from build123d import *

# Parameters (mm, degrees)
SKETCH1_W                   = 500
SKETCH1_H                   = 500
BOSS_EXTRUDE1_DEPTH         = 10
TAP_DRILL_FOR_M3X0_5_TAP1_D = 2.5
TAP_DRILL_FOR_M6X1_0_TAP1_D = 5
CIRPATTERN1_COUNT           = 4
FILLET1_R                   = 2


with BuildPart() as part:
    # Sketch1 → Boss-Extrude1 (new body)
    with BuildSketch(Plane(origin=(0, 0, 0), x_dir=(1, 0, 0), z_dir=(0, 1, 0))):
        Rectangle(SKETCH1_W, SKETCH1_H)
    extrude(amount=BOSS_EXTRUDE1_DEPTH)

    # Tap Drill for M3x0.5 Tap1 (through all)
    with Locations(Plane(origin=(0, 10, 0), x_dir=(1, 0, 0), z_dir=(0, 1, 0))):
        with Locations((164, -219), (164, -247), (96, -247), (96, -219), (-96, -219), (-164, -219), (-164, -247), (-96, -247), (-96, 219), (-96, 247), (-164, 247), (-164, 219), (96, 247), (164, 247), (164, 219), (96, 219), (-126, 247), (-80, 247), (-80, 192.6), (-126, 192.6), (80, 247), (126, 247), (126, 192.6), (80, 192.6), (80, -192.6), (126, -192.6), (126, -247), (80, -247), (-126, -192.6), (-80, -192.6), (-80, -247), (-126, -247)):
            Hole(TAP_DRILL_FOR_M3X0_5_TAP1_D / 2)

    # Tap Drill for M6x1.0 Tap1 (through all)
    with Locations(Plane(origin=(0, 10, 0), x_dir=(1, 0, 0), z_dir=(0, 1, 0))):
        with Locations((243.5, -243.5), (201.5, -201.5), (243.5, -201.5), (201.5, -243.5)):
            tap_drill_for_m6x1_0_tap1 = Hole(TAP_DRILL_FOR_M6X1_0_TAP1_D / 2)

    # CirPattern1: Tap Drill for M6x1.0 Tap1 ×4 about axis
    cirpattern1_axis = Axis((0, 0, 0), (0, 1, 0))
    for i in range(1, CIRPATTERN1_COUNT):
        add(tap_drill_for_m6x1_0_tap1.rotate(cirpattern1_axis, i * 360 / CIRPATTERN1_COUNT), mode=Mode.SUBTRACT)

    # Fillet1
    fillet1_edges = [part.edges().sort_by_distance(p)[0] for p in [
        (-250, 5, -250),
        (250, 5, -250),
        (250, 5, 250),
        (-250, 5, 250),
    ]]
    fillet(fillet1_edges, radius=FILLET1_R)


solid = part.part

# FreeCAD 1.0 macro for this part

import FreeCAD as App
import Part
import Sketcher
Q = App.Units.Quantity


def edges_at(feature, points):
    """Names of the edges that pass closest to the given points."""
    edges = feature.Shape.Edges
    near = lambda p: min(range(len(edges)), key=lambda i: edges[i].distToShape(Part.Vertex(*p))[0])
    return sorted({f"Edge{near(p) + 1}" for p in points})

doc = App.newDocument("Part")
body = doc.addObject("PartDesign::Body", "Body")

# Sketch on XZ plane
sketch1 = body.newObject("Sketcher::SketchObject", "Sketch")
sketch1.AttachmentSupport = (doc.getObject("XZ_Plane"), [""])
sketch1.MapMode = "FlatFace"
sketch1.addGeometry(Part.LineSegment(App.Vector(-250, -250, 0), App.Vector(-250, 250, 0)), False)
sketch1.addGeometry(Part.LineSegment(App.Vector(-250, 250, 0), App.Vector(250, 250, 0)), False)
sketch1.addGeometry(Part.LineSegment(App.Vector(250, 250, 0), App.Vector(250, -250, 0)), False)
sketch1.addGeometry(Part.LineSegment(App.Vector(250, -250, 0), App.Vector(-250, -250, 0)), False)
sketch1.addConstraint(Sketcher.Constraint("Coincident", 0, 2, 1, 1))
sketch1.addConstraint(Sketcher.Constraint("Coincident", 1, 2, 2, 1))
sketch1.addConstraint(Sketcher.Constraint("Coincident", 2, 2, 3, 1))
sketch1.addConstraint(Sketcher.Constraint("Coincident", 3, 2, 0, 1))
sketch1.addConstraint(Sketcher.Constraint("Vertical", 0))
sketch1.addConstraint(Sketcher.Constraint("Horizontal", 1))
sketch1.addConstraint(Sketcher.Constraint("Vertical", 2))
sketch1.addConstraint(Sketcher.Constraint("Horizontal", 3))
sketch1.addConstraint(Sketcher.Constraint("Symmetric", 0, 2, 2, 2, -1, 1))
sketch1.addConstraint(Sketcher.Constraint("Equal", 3, 0))
sketch1.addConstraint(Sketcher.Constraint("DistanceX", 1, 1, 1, 2, Q("500 mm")))
pad1 = body.newObject("PartDesign::Pad", "Pad")
pad1.Profile = sketch1
pad1.Length = 10
pad1.Reversed = True

# Sketch on XZ plane
sketch2 = body.newObject("Sketcher::SketchObject", "Sketch001")
sketch2.AttachmentSupport = (doc.getObject("XZ_Plane"), [""])
sketch2.MapMode = "FlatFace"
sketch2.AttachmentOffset = App.Placement(App.Vector(0, 0, -10), App.Rotation())
sketch2.addGeometry(Part.Circle(App.Vector(164, 219, 0), App.Vector(0, 0, 1), 1.2), False)
sketch2.addGeometry(Part.Circle(App.Vector(164, 247, 0), App.Vector(0, 0, 1), 1.2), False)
sketch2.addGeometry(Part.Circle(App.Vector(96, 247, 0), App.Vector(0, 0, 1), 1.2), False)
sketch2.addGeometry(Part.Circle(App.Vector(96, 219, 0), App.Vector(0, 0, 1), 1.2), False)
sketch2.addGeometry(Part.Circle(App.Vector(-96, 219, 0), App.Vector(0, 0, 1), 1.2), False)
sketch2.addGeometry(Part.Circle(App.Vector(-164, 219, 0), App.Vector(0, 0, 1), 1.2), False)
sketch2.addGeometry(Part.Circle(App.Vector(-164, 247, 0), App.Vector(0, 0, 1), 1.2), False)
sketch2.addGeometry(Part.Circle(App.Vector(-96, 247, 0), App.Vector(0, 0, 1), 1.2), False)
sketch2.addGeometry(Part.Circle(App.Vector(-96, -219, 0), App.Vector(0, 0, 1), 1.2), False)
sketch2.addGeometry(Part.Circle(App.Vector(-96, -247, 0), App.Vector(0, 0, 1), 1.2), False)
sketch2.addGeometry(Part.Circle(App.Vector(-164, -247, 0), App.Vector(0, 0, 1), 1.2), False)
sketch2.addGeometry(Part.Circle(App.Vector(-164, -219, 0), App.Vector(0, 0, 1), 1.2), False)
sketch2.addGeometry(Part.Circle(App.Vector(96, -247, 0), App.Vector(0, 0, 1), 1.2), False)
sketch2.addGeometry(Part.Circle(App.Vector(164, -247, 0), App.Vector(0, 0, 1), 1.2), False)
sketch2.addGeometry(Part.Circle(App.Vector(164, -219, 0), App.Vector(0, 0, 1), 1.2), False)
sketch2.addGeometry(Part.Circle(App.Vector(96, -219, 0), App.Vector(0, 0, 1), 1.2), False)
sketch2.addGeometry(Part.Circle(App.Vector(-126, -247, 0), App.Vector(0, 0, 1), 1.2), False)
sketch2.addGeometry(Part.Circle(App.Vector(-80, -247, 0), App.Vector(0, 0, 1), 1.2), False)
sketch2.addGeometry(Part.Circle(App.Vector(-80, -192.6, 0), App.Vector(0, 0, 1), 1.2), False)
sketch2.addGeometry(Part.Circle(App.Vector(-126, -192.6, 0), App.Vector(0, 0, 1), 1.2), False)
sketch2.addGeometry(Part.Circle(App.Vector(80, -247, 0), App.Vector(0, 0, 1), 1.2), False)
sketch2.addGeometry(Part.Circle(App.Vector(126, -247, 0), App.Vector(0, 0, 1), 1.2), False)
sketch2.addGeometry(Part.Circle(App.Vector(126, -192.6, 0), App.Vector(0, 0, 1), 1.2), False)
sketch2.addGeometry(Part.Circle(App.Vector(80, -192.6, 0), App.Vector(0, 0, 1), 1.2), False)
sketch2.addGeometry(Part.Circle(App.Vector(80, 192.6, 0), App.Vector(0, 0, 1), 1.2), False)
sketch2.addGeometry(Part.Circle(App.Vector(126, 192.6, 0), App.Vector(0, 0, 1), 1.2), False)
sketch2.addGeometry(Part.Circle(App.Vector(126, 247, 0), App.Vector(0, 0, 1), 1.2), False)
sketch2.addGeometry(Part.Circle(App.Vector(80, 247, 0), App.Vector(0, 0, 1), 1.2), False)
sketch2.addGeometry(Part.Circle(App.Vector(-126, 192.6, 0), App.Vector(0, 0, 1), 1.2), False)
sketch2.addGeometry(Part.Circle(App.Vector(-80, 192.6, 0), App.Vector(0, 0, 1), 1.2), False)
sketch2.addGeometry(Part.Circle(App.Vector(-80, 247, 0), App.Vector(0, 0, 1), 1.2), False)
sketch2.addGeometry(Part.Circle(App.Vector(-126, 247, 0), App.Vector(0, 0, 1), 1.2), False)
sketch2.addConstraint(Sketcher.Constraint("Equal", 0, 1))
sketch2.addConstraint(Sketcher.Constraint("Equal", 1, 2))
sketch2.addConstraint(Sketcher.Constraint("Equal", 2, 3))
sketch2.addConstraint(Sketcher.Constraint("Equal", 3, 4))
sketch2.addConstraint(Sketcher.Constraint("Equal", 4, 5))
sketch2.addConstraint(Sketcher.Constraint("Equal", 5, 6))
sketch2.addConstraint(Sketcher.Constraint("Equal", 6, 7))
sketch2.addConstraint(Sketcher.Constraint("Equal", 7, 8))
sketch2.addConstraint(Sketcher.Constraint("Equal", 8, 9))
sketch2.addConstraint(Sketcher.Constraint("Equal", 9, 10))
sketch2.addConstraint(Sketcher.Constraint("Equal", 10, 11))
sketch2.addConstraint(Sketcher.Constraint("Equal", 11, 12))
sketch2.addConstraint(Sketcher.Constraint("Equal", 12, 13))
sketch2.addConstraint(Sketcher.Constraint("Equal", 13, 14))
sketch2.addConstraint(Sketcher.Constraint("Equal", 14, 15))
sketch2.addConstraint(Sketcher.Constraint("Equal", 15, 16))
sketch2.addConstraint(Sketcher.Constraint("Equal", 16, 17))
sketch2.addConstraint(Sketcher.Constraint("Equal", 17, 18))
sketch2.addConstraint(Sketcher.Constraint("Equal", 18, 19))
sketch2.addConstraint(Sketcher.Constraint("Equal", 19, 20))
sketch2.addConstraint(Sketcher.Constraint("Equal", 20, 21))
sketch2.addConstraint(Sketcher.Constraint("Equal", 21, 22))
sketch2.addConstraint(Sketcher.Constraint("Equal", 22, 23))
sketch2.addConstraint(Sketcher.Constraint("Equal", 23, 24))
sketch2.addConstraint(Sketcher.Constraint("Equal", 24, 25))
sketch2.addConstraint(Sketcher.Constraint("Equal", 25, 26))
sketch2.addConstraint(Sketcher.Constraint("Equal", 26, 27))
sketch2.addConstraint(Sketcher.Constraint("Equal", 27, 28))
sketch2.addConstraint(Sketcher.Constraint("Equal", 28, 29))
sketch2.addConstraint(Sketcher.Constraint("Equal", 29, 30))
sketch2.addConstraint(Sketcher.Constraint("Equal", 30, 31))
sketch2.addConstraint(Sketcher.Constraint("Symmetric", 3, 3, 8, 3, -1, 1))
sketch2.addConstraint(Sketcher.Constraint("Symmetric", 2, 3, 9, 3, -1, 1))
sketch2.addConstraint(Sketcher.Constraint("Symmetric", 1, 3, 10, 3, -1, 1))
sketch2.addConstraint(Sketcher.Constraint("Symmetric", 0, 3, 11, 3, -1, 1))
sketch2.addConstraint(Sketcher.Constraint("Symmetric", 7, 3, 12, 3, -1, 1))
sketch2.addConstraint(Sketcher.Constraint("Symmetric", 6, 3, 13, 3, -1, 1))
sketch2.addConstraint(Sketcher.Constraint("Symmetric", 5, 3, 14, 3, -1, 1))
sketch2.addConstraint(Sketcher.Constraint("Symmetric", 4, 3, 15, 3, -1, 1))
sketch2.addConstraint(Sketcher.Constraint("Symmetric", 18, 3, 24, 3, -1, 1))
sketch2.addConstraint(Sketcher.Constraint("Symmetric", 19, 3, 25, 3, -1, 1))
sketch2.addConstraint(Sketcher.Constraint("Symmetric", 16, 3, 26, 3, -1, 1))
sketch2.addConstraint(Sketcher.Constraint("Symmetric", 17, 3, 27, 3, -1, 1))
sketch2.addConstraint(Sketcher.Constraint("Symmetric", 22, 3, 28, 3, -1, 1))
sketch2.addConstraint(Sketcher.Constraint("Symmetric", 23, 3, 29, 3, -1, 1))
sketch2.addConstraint(Sketcher.Constraint("Symmetric", 20, 3, 30, 3, -1, 1))
sketch2.addConstraint(Sketcher.Constraint("Symmetric", 21, 3, 31, 3, -1, 1))
sketch2.addConstraint(Sketcher.Constraint("Symmetric", 3, 3, 4, 3, -2))
sketch2.addConstraint(Sketcher.Constraint("Symmetric", 0, 3, 5, 3, -2))
sketch2.addConstraint(Sketcher.Constraint("Symmetric", 1, 3, 6, 3, -2))
sketch2.addConstraint(Sketcher.Constraint("Symmetric", 2, 3, 7, 3, -2))
sketch2.addConstraint(Sketcher.Constraint("Symmetric", 17, 3, 20, 3, -2))
sketch2.addConstraint(Sketcher.Constraint("Symmetric", 16, 3, 21, 3, -2))
sketch2.addConstraint(Sketcher.Constraint("Symmetric", 19, 3, 22, 3, -2))
sketch2.addConstraint(Sketcher.Constraint("Symmetric", 18, 3, 23, 3, -2))
sketch2.addConstraint(Sketcher.Constraint("Horizontal", 1, 3, 2, 3))
sketch2.addConstraint(Sketcher.Constraint("Horizontal", 0, 3, 3, 3))
sketch2.addConstraint(Sketcher.Constraint("Horizontal", 13, 3, 16, 3))
sketch2.addConstraint(Sketcher.Constraint("Horizontal", 16, 3, 17, 3))
sketch2.addConstraint(Sketcher.Constraint("Horizontal", 18, 3, 19, 3))
sketch2.addConstraint(Sketcher.Constraint("Vertical", 0, 3, 1, 3))
sketch2.addConstraint(Sketcher.Constraint("Vertical", 2, 3, 3, 3))
sketch2.addConstraint(Sketcher.Constraint("Vertical", 17, 3, 18, 3))
sketch2.addConstraint(Sketcher.Constraint("Vertical", 16, 3, 19, 3))
sketch2.addConstraint(Sketcher.Constraint("Diameter", 0, Q("2.5 mm")))
sketch2.addConstraint(Sketcher.Constraint("DistanceX", -1, 1, 0, 3, Q("164 mm")))
sketch2.addConstraint(Sketcher.Constraint("DistanceY", -1, 1, 0, 3, Q("219 mm")))
sketch2.addConstraint(Sketcher.Constraint("DistanceY", -1, 1, 1, 3, Q("247 mm")))
sketch2.addConstraint(Sketcher.Constraint("DistanceX", -1, 1, 2, 3, Q("96 mm")))
sketch2.addConstraint(Sketcher.Constraint("DistanceX", 16, 3, -1, 1, Q("126 mm")))
sketch2.addConstraint(Sketcher.Constraint("DistanceX", 17, 3, -1, 1, Q("80 mm")))
sketch2.addConstraint(Sketcher.Constraint("DistanceY", 18, 3, -1, 1, Q("192.6 mm")))
doc.recompute()
hole = body.newObject("PartDesign::Hole", "Hole")
hole.Profile = sketch2
hole.ThreadType = "None"
hole.Diameter = 2.5
hole.DepthType = "ThroughAll"
hole.Reversed = True

# Sketch on XZ plane
sketch3 = body.newObject("Sketcher::SketchObject", "Sketch002")
sketch3.AttachmentSupport = (doc.getObject("XZ_Plane"), [""])
sketch3.MapMode = "FlatFace"
sketch3.AttachmentOffset = App.Placement(App.Vector(0, 0, -10), App.Rotation())
sketch3.addGeometry(Part.Circle(App.Vector(243.5, 243.5, 0), App.Vector(0, 0, 1), 2.5), False)
sketch3.addGeometry(Part.Circle(App.Vector(201.5, 201.5, 0), App.Vector(0, 0, 1), 2.5), False)
sketch3.addGeometry(Part.Circle(App.Vector(243.5, 201.5, 0), App.Vector(0, 0, 1), 2.5), False)
sketch3.addGeometry(Part.Circle(App.Vector(201.5, 243.5, 0), App.Vector(0, 0, 1), 2.5), False)
sketch3.addConstraint(Sketcher.Constraint("Equal", 0, 1))
sketch3.addConstraint(Sketcher.Constraint("Equal", 1, 2))
sketch3.addConstraint(Sketcher.Constraint("Equal", 2, 3))
sketch3.addConstraint(Sketcher.Constraint("Horizontal", 1, 3, 2, 3))
sketch3.addConstraint(Sketcher.Constraint("Horizontal", 0, 3, 3, 3))
sketch3.addConstraint(Sketcher.Constraint("Vertical", 0, 3, 2, 3))
sketch3.addConstraint(Sketcher.Constraint("Vertical", 1, 3, 3, 3))
sketch3.addConstraint(Sketcher.Constraint("Diameter", 0, Q("5 mm")))
sketch3.addConstraint(Sketcher.Constraint("DistanceX", 1, 3, 0, 3, Q("42 mm")))
sketch3.addConstraint(Sketcher.Constraint("DistanceY", 1, 3, 0, 3, Q("42 mm")))
sketch3.addConstraint(Sketcher.Constraint("DistanceX", -1, 1, 0, 3, Q("243.5 mm")))
sketch3.addConstraint(Sketcher.Constraint("DistanceY", -1, 1, 0, 3, Q("243.5 mm")))
doc.recompute()
hole2 = body.newObject("PartDesign::Hole", "Hole001")
hole2.Profile = sketch3
hole2.ThreadType = "None"
hole2.Diameter = 5
hole2.DepthType = "ThroughAll"
hole2.Reversed = True
doc.recompute()

polarpattern = body.newObject("PartDesign::PolarPattern", "PolarPattern")
polarpattern.Originals = [hole2]
polarpattern.Axis = (doc.getObject("Y_Axis"), [""])
polarpattern.Angle = 360
polarpattern.Occurrences = 4
body.Tip = polarpattern
doc.recompute()

fillet = body.newObject("PartDesign::Fillet", "Fillet")
fillet.Base = (polarpattern, edges_at(polarpattern, [
    (-250, 5, -250),
    (250, 5, -250),
    (250, 5, 250),
    (-250, 5, 250),
]))
fillet.Radius = 2

doc.recompute()
